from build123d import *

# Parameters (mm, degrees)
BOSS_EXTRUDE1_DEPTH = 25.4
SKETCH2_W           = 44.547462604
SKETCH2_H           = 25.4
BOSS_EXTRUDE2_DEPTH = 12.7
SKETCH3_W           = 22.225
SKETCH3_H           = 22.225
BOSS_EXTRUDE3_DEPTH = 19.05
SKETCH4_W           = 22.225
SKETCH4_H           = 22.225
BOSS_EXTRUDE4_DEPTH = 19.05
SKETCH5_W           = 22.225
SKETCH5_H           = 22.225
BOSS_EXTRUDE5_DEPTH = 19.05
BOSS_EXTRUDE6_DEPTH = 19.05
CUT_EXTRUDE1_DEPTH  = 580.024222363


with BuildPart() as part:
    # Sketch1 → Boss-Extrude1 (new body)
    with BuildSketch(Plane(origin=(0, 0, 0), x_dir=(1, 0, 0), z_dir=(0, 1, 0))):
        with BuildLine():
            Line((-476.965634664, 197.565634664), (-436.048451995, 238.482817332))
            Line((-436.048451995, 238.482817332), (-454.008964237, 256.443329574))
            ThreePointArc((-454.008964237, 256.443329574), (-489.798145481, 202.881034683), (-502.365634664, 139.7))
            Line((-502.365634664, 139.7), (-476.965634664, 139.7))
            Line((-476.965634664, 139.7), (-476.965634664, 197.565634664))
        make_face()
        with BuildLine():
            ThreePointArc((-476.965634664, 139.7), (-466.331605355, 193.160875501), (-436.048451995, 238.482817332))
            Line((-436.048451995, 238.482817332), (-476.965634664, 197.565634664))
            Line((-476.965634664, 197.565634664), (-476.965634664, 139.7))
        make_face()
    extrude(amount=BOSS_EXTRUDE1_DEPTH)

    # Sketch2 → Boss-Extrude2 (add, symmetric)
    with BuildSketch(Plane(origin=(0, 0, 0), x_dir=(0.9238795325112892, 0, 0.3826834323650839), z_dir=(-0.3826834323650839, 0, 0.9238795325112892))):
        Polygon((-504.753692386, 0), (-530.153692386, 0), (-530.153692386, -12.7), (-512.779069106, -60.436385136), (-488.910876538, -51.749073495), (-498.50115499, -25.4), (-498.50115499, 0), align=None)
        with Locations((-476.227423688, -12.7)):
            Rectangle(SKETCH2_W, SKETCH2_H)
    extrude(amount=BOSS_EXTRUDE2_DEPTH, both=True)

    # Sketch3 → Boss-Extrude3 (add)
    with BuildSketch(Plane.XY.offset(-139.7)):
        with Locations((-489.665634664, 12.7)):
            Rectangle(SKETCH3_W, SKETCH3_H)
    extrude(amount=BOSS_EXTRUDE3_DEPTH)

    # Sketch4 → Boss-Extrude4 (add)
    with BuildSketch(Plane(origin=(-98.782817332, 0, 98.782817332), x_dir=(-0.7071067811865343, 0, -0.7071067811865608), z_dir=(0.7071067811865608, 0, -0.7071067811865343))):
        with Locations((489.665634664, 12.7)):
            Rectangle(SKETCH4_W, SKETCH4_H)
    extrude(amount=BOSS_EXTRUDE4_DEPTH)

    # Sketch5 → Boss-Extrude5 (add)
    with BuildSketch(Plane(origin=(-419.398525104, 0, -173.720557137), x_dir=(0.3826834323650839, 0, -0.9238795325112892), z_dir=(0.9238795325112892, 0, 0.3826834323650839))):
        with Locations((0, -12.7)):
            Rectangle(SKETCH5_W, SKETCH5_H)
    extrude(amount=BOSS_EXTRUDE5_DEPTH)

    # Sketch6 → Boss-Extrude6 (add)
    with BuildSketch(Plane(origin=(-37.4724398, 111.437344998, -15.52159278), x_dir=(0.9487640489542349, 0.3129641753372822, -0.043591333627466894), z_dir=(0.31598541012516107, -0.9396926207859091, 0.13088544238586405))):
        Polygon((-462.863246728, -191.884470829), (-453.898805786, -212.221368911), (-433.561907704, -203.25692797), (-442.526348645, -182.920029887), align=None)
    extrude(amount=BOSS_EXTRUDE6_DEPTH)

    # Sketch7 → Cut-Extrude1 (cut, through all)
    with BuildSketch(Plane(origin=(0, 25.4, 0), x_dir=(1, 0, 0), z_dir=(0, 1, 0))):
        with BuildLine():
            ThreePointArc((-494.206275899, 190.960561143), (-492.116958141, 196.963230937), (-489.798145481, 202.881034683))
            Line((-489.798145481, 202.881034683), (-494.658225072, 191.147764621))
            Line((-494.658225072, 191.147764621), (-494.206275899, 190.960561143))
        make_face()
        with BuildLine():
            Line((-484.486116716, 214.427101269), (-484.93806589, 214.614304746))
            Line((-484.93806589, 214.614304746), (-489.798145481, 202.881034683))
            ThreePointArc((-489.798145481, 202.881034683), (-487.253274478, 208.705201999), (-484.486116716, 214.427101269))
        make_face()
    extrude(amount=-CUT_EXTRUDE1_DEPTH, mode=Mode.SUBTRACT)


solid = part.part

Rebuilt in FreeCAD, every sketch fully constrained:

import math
import FreeCAD as App
import Part
import Sketcher

V = App.Vector
Q = App.Units.Quantity


def add_polygon(sketch, points):
    """Adds a closed chain of lines whose ends are joined by coincident constraints."""
    first, n = sketch.GeometryCount, len(points)
    for a, b in zip(points, points[1:] + points[:1]):
        sketch.addGeometry(Part.LineSegment(App.Vector(*a, 0), App.Vector(*b, 0)), False)
    for i in range(n):
        sketch.addConstraint(Sketcher.Constraint("Coincident", first + i, 2, first + (i + 1) % n, 1))

doc = App.newDocument("Part")
body = doc.addObject("PartDesign::Body", "Body")

sketch1 = body.newObject("Sketcher::SketchObject", "Sketch")
sketch1.AttachmentSupport = (doc.getObject("XZ_Plane"), [""])
sketch1.MapMode = "FlatFace"
sketch1.addGeometry([
    Part.LineSegment(V(-436.048452, -238.482817, 0), V(-454.008964, -256.44333, 0)),
    Part.ArcOfCircle(Part.Circle(V(-337.265635, -139.7, 0), V(0, 0, 1), 165.1), math.radians(-180), math.radians(-135)),
    Part.LineSegment(V(-502.365635, -139.7, 0), V(-476.965635, -139.7, 0)),
    Part.ArcOfCircle(Part.Circle(V(-337.265635, -139.7, 0), V(0, 0, 1), 139.7), math.radians(-180), math.radians(-135)),
], False)
sketch1.addConstraint([
    Sketcher.Constraint("Coincident", 0, 2, 1, 2),
    Sketcher.Constraint("Coincident", 1, 1, 2, 1),
    Sketcher.Constraint("Coincident", 2, 2, 3, 1),
    Sketcher.Constraint("Coincident", 3, 2, 0, 1),
    Sketcher.Constraint("Horizontal", 2),
    Sketcher.Constraint("Coincident", 3, 3, 1, 3),
    Sketcher.Constraint("Horizontal", 3, 3, 1, 1),
    Sketcher.Constraint("Radius", 1, Q("6.5 in")),
    Sketcher.Constraint("Radius", 3, Q("5.5 in")),
    Sketcher.Constraint("Angle", 0, Q("-135 deg")),
    Sketcher.Constraint("DistanceY", 1, 3, -1, 1, Q("5.5 in")),
    Sketcher.Constraint("DistanceY", 0, 2, -1, 1, Q("256.44333 mm")),
    Sketcher.Constraint("DistanceX", 3, 2, -1, 1, Q("436.048452 mm")),
])
pad1 = body.newObject("PartDesign::Pad", "Pad")
pad1.Profile = sketch1
pad1.Length = Q("1 in")
pad1.Reversed = True

sketch2 = body.newObject("Sketcher::SketchObject", "Sketch001")
sketch2.Placement = App.Placement(V(0, 0, 0), App.Rotation(V(0.923879533, 0, 0.382683432), V(0, 1.000000001, 0), V(-0.382683432, 0, 0.923879533), "ZXY"))
add_polygon(sketch2, [(-530.153693, 0), (-530.153693, -12.7), (-512.779069, -60.436385), (-488.910877, -51.749074), (-498.501155, -25.4), (-453.953693, -25.4), (-453.953693, 0)])
sketch2.addConstraint([
    Sketcher.Constraint("Vertical", 0),
    Sketcher.Constraint("Horizontal", 4),
    Sketcher.Constraint("Vertical", 5),
    Sketcher.Constraint("Horizontal", 6),
    Sketcher.Constraint("PointOnObject", 5, 2, -1),
    Sketcher.Constraint("Perpendicular", 1, 2),
    Sketcher.Constraint("Perpendicular", 2, 3),
    Sketcher.Constraint("DistanceX", 6, 2, 6, 1, Q("3 in")),
    Sketcher.Constraint("DistanceY", 5, 1, 5, 2, Q("1 in")),
    Sketcher.Constraint("Distance", 1, Q("2 in")),
    Sketcher.Constraint("Distance", 2, Q("1 in")),
    Sketcher.Constraint("DistanceY", 0, 2, 0, 1, Q("0.5 in")),
    Sketcher.Constraint("Angle", 1, Q("-70 deg")),
    Sketcher.Constraint("DistanceX", 1, 2, -1, 1, Q("512.779069 mm")),
])
pad2 = body.newObject("PartDesign::Pad", "Pad001")
pad2.Profile = sketch2
pad2.Length = Q("1 in")
pad2.Midplane = True

sketch3 = body.newObject("Sketcher::SketchObject", "Sketch002")
sketch3.AttachmentSupport = (doc.getObject("XY_Plane"), [""])
sketch3.MapMode = "FlatFace"
sketch3.AttachmentOffset = App.Placement(V(0, 0, -5.5 * 25.4), App.Rotation())
add_polygon(sketch3, [(-500.778135, 23.8125), (-500.778135, 1.5875), (-478.553135, 1.5875), (-478.553135, 23.8125)])
sketch3.addConstraint([
    Sketcher.Constraint("Vertical", 0),
    Sketcher.Constraint("Horizontal", 1),
    Sketcher.Constraint("Vertical", 2),
    Sketcher.Constraint("Horizontal", 3),
    Sketcher.Constraint("Equal", 3, 0),
    Sketcher.Constraint("DistanceX", 1, 1, 1, 2, Q("0.875 in")),
    Sketcher.Constraint("DistanceY", -1, 1, 0, 2, Q("0.0625 in")),
    Sketcher.Constraint("DistanceX", 0, 2, -1, 1, Q("500.778135 mm")),
])
pad3 = body.newObject("PartDesign::Pad", "Pad002")
pad3.Profile = sketch3
pad3.Length = Q("0.75 in")

sketch4 = body.newObject("Sketcher::SketchObject", "Sketch003")
sketch4.Placement = App.Placement(V(-98.782817, 0, 98.782817), App.Rotation(V(-0.707106781, 0, -0.707106781), V(0, 0.999999999, 0), V(0.707106781, 0, -0.707106781), "ZXY"))
add_polygon(sketch4, [(478.553134, 23.8125), (478.553134, 1.5875), (500.778134, 1.5875), (500.778134, 23.8125)])
sketch4.addConstraint([
    Sketcher.Constraint("Vertical", 0),
    Sketcher.Constraint("Horizontal", 1),
    Sketcher.Constraint("Vertical", 2),
    Sketcher.Constraint("Horizontal", 3),
    Sketcher.Constraint("Equal", 3, 0),
    Sketcher.Constraint("DistanceX", 1, 1, 1, 2, Q("0.875 in")),
    Sketcher.Constraint("DistanceY", -1, 1, 0, 2, Q("0.0625 in")),
    Sketcher.Constraint("DistanceX", -1, 1, 0, 2, Q("478.553134 mm")),
])
pad4 = body.newObject("PartDesign::Pad", "Pad003")
pad4.Profile = sketch4
pad4.Length = Q("0.75 in")

sketch5 = body.newObject("Sketcher::SketchObject", "Sketch004")
sketch5.Placement = App.Placement(V(-419.398525, 0, -173.720557), App.Rotation(V(0.382683432, 0, -0.923879533), V(0, 1.000000001, 0), V(0.923879533, 0, 0.382683432), "ZXY"))
add_polygon(sketch5, [(-11.1125, -1.5875), (-11.1125, -23.8125), (11.1125, -23.8125), (11.1125, -1.5875)])
sketch5.addConstraint([
    Sketcher.Constraint("Vertical", 0),
    Sketcher.Constraint("Horizontal", 1),
    Sketcher.Constraint("Vertical", 2),
    Sketcher.Constraint("Horizontal", 3),
    Sketcher.Constraint("Equal", 3, 0),
    Sketcher.Constraint("DistanceX", 1, 1, 1, 2, Q("0.875 in")),
    Sketcher.Constraint("DistanceX", 0, 2, -1, 1, Q("0.4375 in")),
    Sketcher.Constraint("DistanceY", 0, 2, -1, 1, Q("0.9375 in")),
])
pad5 = body.newObject("PartDesign::Pad", "Pad004")
pad5.Profile = sketch5
pad5.Length = Q("0.75 in")

sketch6 = body.newObject("Sketcher::SketchObject", "Sketch005")
sketch6.Placement = App.Placement(V(-37.47244, 111.437345, -15.521593), App.Rotation(V(0.948764049, 0.312964175, -0.043591334), V(0.000000001, 0.137953627, 0.990438689), V(0.31598541, -0.939692621, 0.130885442), "ZXY"))
add_polygon(sketch6, [(-462.863247, -191.884471), (-453.898806, -212.221369), (-433.561908, -203.256928), (-442.526349, -182.92003)])
sketch6.addConstraint([
    Sketcher.Constraint("Perpendicular", 0, 1),
    Sketcher.Constraint("Perpendicular", 1, 2),
    Sketcher.Constraint("Perpendicular", 2, 3),
    Sketcher.Constraint("Equal", 0, 1),
    Sketcher.Constraint("Distance", 0, Q("0.875 in")),
    Sketcher.Constraint("DistanceX", 0, 2, 1, 2, Q("20.336898 mm")),
    Sketcher.Constraint("DistanceY", 0, 2, -1, 1, Q("212.221369 mm")),
    Sketcher.Constraint("DistanceX", 2, 2, -1, 1, Q("442.526349 mm")),
])
pad6 = body.newObject("PartDesign::Pad", "Pad005")
pad6.Profile = sketch6
pad6.Length = Q("0.75 in")

sketch7 = body.newObject("Sketcher::SketchObject", "Sketch006")
sketch7.AttachmentSupport = (doc.getObject("XZ_Plane"), [""])
sketch7.MapMode = "FlatFace"
sketch7.AttachmentOffset = App.Placement(V(0, 0, -1 * 25.4), App.Rotation())
sketch7.addGeometry([
    Part.ArcOfCircle(Part.Circle(V(-337.265635, -139.7, 0), V(0, 0, 1), 165.1), math.radians(-161.911726), math.radians(-157.5)),
    Part.LineSegment(V(-489.798145, -202.881035, 0), V(-494.658225, -191.147765, 0)),
    Part.LineSegment(V(-494.658225, -191.147765, 0), V(-494.206276, -190.960561, 0)),
    Part.LineSegment(V(-484.486117, -214.427101, 0), V(-484.938066, -214.614305, 0)),
    Part.LineSegment(V(-484.938066, -214.614305, 0), V(-489.798145, -202.881035, 0)),
    Part.ArcOfCircle(Part.Circle(V(-337.265635, -139.7, 0), V(0, 0, 1), 165.099999), math.radians(-157.5), math.radians(-153.088274)),
], False)
sketch7.addConstraint([
    Sketcher.Constraint("Tangent", 0, 2, 1, 1),
    Sketcher.Constraint("Coincident", 1, 2, 2, 1),
    Sketcher.Constraint("Coincident", 2, 2, 0, 1),
    Sketcher.Constraint("Coincident", 3, 2, 4, 1),
    Sketcher.Constraint("Tangent", 4, 2, 5, 1),
    Sketcher.Constraint("Coincident", 5, 2, 3, 1),
    Sketcher.Constraint("Coincident", 5, 3, 0, 3),
    Sketcher.Constraint("Coincident", 4, 2, 0, 2),
    Sketcher.Constraint("Perpendicular", 1, 2),
    Sketcher.Constraint("Parallel", 2, 3),
    Sketcher.Constraint("Equal", 2, 3),
    Sketcher.Constraint("Radius", 0, Q("6.5 in")),
    Sketcher.Constraint("Distance", 1, Q("0.5 in")),
    Sketcher.Constraint("DistanceY", 0, 3, -1, 1, Q("5.5 in")),
    Sketcher.Constraint("Angle", 1, Q("112.5 deg")),
    Sketcher.Constraint("DistanceX", 0, 3, -1, 1, Q("337.265635 mm")),
])
pocket1 = body.newObject("PartDesign::Pocket", "Pocket")
pocket1.Profile = sketch7
pocket1.Type = "ThroughAll"
pocket1.Reversed = True

doc.recompute()
